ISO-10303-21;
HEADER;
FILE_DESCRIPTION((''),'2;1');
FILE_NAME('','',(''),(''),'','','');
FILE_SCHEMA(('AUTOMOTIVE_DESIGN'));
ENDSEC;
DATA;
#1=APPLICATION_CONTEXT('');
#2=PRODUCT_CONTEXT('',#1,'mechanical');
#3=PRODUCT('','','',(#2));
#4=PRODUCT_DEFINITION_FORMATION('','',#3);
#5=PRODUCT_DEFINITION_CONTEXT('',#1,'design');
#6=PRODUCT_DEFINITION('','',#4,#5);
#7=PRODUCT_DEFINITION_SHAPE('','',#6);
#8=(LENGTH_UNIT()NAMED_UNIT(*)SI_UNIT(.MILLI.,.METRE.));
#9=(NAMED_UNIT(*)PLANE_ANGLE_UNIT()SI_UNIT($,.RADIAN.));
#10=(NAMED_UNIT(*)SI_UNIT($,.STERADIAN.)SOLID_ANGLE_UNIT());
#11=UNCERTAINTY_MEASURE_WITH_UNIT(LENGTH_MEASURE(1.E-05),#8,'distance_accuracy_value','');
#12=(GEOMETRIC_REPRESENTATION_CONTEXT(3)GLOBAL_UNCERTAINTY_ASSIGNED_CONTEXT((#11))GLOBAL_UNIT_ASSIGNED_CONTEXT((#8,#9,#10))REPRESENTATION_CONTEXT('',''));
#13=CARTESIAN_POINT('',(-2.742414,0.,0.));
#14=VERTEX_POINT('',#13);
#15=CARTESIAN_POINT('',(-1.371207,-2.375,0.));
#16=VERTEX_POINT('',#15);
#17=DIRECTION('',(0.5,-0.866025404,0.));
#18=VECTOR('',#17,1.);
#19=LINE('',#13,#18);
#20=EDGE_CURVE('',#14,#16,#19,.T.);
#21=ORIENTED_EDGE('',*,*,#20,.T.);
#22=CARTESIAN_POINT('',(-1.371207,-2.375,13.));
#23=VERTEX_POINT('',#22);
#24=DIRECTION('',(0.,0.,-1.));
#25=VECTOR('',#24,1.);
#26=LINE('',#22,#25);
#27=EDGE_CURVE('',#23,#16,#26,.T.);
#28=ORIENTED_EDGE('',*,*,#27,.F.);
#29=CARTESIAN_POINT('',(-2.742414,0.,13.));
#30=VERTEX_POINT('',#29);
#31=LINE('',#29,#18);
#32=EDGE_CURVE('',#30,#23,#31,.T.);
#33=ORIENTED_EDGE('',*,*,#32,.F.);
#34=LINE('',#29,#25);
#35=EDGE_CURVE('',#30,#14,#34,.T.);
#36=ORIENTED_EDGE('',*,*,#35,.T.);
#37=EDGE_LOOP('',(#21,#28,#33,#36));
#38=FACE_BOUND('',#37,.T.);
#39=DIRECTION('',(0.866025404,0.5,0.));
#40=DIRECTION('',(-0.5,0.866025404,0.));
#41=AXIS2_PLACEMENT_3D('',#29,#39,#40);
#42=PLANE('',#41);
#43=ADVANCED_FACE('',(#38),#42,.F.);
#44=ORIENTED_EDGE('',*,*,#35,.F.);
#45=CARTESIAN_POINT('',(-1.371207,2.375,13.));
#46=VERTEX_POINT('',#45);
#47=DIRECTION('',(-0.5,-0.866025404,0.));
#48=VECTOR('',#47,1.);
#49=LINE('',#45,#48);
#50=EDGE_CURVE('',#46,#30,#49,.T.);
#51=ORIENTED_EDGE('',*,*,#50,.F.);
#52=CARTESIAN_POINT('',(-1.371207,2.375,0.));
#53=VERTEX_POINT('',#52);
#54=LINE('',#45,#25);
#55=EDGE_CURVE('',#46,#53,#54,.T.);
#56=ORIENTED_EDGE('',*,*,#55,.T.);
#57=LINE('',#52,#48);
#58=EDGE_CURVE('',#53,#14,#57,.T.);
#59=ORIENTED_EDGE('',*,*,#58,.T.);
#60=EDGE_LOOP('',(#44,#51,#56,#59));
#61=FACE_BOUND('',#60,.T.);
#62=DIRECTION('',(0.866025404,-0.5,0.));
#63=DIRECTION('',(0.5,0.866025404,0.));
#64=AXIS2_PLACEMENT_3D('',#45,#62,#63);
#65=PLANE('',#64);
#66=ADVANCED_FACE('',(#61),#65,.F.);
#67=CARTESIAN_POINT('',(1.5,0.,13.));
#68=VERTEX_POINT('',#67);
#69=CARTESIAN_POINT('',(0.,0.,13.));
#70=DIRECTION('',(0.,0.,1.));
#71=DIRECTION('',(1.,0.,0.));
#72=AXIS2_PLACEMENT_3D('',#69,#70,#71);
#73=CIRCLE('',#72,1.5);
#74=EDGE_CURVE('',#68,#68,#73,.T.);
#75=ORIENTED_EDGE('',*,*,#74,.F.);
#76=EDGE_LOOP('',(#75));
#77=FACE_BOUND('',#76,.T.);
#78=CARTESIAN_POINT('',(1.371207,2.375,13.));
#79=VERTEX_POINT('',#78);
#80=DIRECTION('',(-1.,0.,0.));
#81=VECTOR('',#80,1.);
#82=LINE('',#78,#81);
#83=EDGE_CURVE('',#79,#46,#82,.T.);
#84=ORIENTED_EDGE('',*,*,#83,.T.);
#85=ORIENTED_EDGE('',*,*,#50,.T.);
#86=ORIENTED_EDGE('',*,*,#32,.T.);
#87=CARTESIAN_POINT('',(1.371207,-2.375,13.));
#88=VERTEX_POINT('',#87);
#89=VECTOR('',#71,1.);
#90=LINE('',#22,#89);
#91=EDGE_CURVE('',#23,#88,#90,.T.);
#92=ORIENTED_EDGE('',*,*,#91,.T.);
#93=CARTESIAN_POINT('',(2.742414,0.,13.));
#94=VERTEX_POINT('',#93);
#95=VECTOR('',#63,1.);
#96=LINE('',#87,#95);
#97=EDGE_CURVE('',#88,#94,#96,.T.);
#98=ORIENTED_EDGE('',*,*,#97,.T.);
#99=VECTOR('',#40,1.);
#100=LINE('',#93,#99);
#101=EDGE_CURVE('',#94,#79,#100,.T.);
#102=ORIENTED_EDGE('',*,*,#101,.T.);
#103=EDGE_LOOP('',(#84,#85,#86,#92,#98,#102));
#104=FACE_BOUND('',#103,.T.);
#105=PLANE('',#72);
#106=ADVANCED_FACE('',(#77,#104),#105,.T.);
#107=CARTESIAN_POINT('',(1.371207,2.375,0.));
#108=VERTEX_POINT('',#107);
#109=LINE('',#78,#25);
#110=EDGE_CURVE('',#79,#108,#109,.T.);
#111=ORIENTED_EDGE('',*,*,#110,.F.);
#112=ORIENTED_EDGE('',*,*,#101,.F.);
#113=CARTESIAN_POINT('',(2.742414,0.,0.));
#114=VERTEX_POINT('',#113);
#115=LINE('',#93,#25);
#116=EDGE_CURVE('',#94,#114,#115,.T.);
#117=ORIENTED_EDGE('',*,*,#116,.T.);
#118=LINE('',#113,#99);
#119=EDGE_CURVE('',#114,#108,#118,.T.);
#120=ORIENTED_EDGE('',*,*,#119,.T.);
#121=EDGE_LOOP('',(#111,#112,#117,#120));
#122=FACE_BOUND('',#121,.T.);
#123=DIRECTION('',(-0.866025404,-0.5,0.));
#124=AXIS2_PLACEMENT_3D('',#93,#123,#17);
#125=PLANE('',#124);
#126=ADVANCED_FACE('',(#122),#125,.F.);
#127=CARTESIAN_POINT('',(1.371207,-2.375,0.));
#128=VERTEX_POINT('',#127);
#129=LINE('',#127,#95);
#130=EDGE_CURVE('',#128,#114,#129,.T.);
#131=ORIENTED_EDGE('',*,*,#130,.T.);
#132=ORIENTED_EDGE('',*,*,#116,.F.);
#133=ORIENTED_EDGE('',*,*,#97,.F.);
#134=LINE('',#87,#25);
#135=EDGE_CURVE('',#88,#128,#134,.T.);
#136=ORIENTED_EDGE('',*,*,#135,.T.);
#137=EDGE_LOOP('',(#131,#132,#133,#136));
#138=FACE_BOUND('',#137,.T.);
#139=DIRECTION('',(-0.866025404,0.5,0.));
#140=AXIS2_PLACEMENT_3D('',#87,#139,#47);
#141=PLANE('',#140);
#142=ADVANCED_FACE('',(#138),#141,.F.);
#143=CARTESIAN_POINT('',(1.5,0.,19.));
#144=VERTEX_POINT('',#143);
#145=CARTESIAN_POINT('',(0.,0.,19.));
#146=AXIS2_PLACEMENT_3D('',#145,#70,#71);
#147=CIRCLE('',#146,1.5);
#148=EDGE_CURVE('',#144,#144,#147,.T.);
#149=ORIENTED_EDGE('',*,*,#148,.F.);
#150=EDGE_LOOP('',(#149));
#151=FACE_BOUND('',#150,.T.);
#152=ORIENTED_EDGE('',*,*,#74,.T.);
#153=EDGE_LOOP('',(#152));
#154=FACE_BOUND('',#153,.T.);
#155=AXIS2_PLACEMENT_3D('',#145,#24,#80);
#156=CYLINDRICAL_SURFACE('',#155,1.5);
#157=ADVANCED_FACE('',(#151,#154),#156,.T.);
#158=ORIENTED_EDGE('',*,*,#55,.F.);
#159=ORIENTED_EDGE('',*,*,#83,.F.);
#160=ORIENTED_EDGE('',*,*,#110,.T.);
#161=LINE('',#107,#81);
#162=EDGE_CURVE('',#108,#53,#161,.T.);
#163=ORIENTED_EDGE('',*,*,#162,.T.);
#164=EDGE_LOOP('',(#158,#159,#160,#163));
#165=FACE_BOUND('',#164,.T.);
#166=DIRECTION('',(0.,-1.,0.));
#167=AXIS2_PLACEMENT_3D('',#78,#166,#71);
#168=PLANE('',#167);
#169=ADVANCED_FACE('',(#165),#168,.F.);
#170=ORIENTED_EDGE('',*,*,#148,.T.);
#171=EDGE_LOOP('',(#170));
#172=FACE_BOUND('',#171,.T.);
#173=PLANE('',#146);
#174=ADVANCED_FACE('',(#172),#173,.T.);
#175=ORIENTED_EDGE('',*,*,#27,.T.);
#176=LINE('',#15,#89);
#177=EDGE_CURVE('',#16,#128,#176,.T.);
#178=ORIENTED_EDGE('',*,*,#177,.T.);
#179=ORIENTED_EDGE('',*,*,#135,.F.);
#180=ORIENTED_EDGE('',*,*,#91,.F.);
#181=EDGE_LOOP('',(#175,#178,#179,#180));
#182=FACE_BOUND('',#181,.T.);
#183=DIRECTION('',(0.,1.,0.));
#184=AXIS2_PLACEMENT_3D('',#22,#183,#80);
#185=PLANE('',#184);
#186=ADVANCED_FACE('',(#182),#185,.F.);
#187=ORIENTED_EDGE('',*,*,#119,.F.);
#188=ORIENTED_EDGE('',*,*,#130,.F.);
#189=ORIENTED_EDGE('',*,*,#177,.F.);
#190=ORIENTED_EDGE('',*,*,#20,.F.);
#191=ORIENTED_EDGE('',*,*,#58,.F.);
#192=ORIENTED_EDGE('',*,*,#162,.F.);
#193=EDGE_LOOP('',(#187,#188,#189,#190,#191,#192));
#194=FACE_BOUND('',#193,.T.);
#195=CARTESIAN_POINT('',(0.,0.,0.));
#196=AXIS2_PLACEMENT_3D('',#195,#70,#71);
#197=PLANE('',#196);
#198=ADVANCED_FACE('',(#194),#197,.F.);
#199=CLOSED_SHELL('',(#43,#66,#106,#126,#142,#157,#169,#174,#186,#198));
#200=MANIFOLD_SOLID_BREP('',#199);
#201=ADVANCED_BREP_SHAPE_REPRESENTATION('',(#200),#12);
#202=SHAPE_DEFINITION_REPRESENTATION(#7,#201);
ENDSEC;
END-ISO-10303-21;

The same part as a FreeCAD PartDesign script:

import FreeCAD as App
import Part
import Sketcher
Q = App.Units.Quantity


def add_polygon(sketch, points):
    """Adds a closed chain of lines whose ends are joined by coincident constraints."""
    first, n = sketch.GeometryCount, len(points)
    for a, b in zip(points, points[1:] + points[:1]):
        sketch.addGeometry(Part.LineSegment(App.Vector(*a, 0), App.Vector(*b, 0)), False)
    for i in range(n):
        sketch.addConstraint(Sketcher.Constraint("Coincident", first + i, 2, first + (i + 1) % n, 1))

doc = App.newDocument("Part")
body = doc.addObject("PartDesign::Body", "Body")

# Sketch on XY plane
sketch1 = body.newObject("Sketcher::SketchObject", "Sketch")
sketch1.AttachmentSupport = (doc.getObject("XY_Plane"), [""])
sketch1.MapMode = "FlatFace"
add_polygon(sketch1, [(2.7, 0), (1.4, 2.4), (-1.4, 2.4), (-2.7, 0), (-1.4, -2.4), (1.4, -2.4)])  # lines 0-5
sketch1.addConstraint(Sketcher.Constraint("Horizontal", 1))
sketch1.addConstraint(Sketcher.Constraint("Horizontal", 4))
sketch1.addConstraint(Sketcher.Constraint("Symmetric", 0, 2, 3, 2, -1, 1))
sketch1.addConstraint(Sketcher.Constraint("Symmetric", 2, 2, 5, 2, -1, 1))
sketch1.addConstraint(Sketcher.Constraint("PointOnObject", 2, 2, -1))
sketch1.addConstraint(Sketcher.Constraint("Parallel", 2, 5))
sketch1.addConstraint(Sketcher.Constraint("Vertical", 1, 2, 3, 2))
sketch1.addConstraint(Sketcher.Constraint("Angle", 0, Q("120 deg")))
sketch1.addConstraint(Sketcher.Constraint("DistanceY", 3, 2, 1, 2, 4.75))
sketch1.addConstraint(Sketcher.Constraint("DistanceX", 1, 2, 1, 1, 2.742414))
pad1 = body.newObject("PartDesign::Pad", "Pad")
pad1.Profile = sketch1
pad1.Length = 13

# Sketch on XY plane
sketch2 = body.newObject("Sketcher::SketchObject", "Sketch001")
sketch2.AttachmentSupport = (doc.getObject("XY_Plane"), [""])
sketch2.MapMode = "FlatFace"
sketch2.AttachmentOffset = App.Placement(App.Vector(0, 0, 13), App.Rotation())
sketch2.addGeometry(Part.Circle(App.Vector(0, 0, 0), App.Vector(0, 0, 1), 1.5), False)
sketch2.addConstraint(Sketcher.Constraint("Coincident", 0, 3, -1, 1))
sketch2.addConstraint(Sketcher.Constraint("Diameter", 0, 3.0))
pad2 = body.newObject("PartDesign::Pad", "Pad001")
pad2.Profile = sketch2
pad2.Length = 6

doc.recompute()
